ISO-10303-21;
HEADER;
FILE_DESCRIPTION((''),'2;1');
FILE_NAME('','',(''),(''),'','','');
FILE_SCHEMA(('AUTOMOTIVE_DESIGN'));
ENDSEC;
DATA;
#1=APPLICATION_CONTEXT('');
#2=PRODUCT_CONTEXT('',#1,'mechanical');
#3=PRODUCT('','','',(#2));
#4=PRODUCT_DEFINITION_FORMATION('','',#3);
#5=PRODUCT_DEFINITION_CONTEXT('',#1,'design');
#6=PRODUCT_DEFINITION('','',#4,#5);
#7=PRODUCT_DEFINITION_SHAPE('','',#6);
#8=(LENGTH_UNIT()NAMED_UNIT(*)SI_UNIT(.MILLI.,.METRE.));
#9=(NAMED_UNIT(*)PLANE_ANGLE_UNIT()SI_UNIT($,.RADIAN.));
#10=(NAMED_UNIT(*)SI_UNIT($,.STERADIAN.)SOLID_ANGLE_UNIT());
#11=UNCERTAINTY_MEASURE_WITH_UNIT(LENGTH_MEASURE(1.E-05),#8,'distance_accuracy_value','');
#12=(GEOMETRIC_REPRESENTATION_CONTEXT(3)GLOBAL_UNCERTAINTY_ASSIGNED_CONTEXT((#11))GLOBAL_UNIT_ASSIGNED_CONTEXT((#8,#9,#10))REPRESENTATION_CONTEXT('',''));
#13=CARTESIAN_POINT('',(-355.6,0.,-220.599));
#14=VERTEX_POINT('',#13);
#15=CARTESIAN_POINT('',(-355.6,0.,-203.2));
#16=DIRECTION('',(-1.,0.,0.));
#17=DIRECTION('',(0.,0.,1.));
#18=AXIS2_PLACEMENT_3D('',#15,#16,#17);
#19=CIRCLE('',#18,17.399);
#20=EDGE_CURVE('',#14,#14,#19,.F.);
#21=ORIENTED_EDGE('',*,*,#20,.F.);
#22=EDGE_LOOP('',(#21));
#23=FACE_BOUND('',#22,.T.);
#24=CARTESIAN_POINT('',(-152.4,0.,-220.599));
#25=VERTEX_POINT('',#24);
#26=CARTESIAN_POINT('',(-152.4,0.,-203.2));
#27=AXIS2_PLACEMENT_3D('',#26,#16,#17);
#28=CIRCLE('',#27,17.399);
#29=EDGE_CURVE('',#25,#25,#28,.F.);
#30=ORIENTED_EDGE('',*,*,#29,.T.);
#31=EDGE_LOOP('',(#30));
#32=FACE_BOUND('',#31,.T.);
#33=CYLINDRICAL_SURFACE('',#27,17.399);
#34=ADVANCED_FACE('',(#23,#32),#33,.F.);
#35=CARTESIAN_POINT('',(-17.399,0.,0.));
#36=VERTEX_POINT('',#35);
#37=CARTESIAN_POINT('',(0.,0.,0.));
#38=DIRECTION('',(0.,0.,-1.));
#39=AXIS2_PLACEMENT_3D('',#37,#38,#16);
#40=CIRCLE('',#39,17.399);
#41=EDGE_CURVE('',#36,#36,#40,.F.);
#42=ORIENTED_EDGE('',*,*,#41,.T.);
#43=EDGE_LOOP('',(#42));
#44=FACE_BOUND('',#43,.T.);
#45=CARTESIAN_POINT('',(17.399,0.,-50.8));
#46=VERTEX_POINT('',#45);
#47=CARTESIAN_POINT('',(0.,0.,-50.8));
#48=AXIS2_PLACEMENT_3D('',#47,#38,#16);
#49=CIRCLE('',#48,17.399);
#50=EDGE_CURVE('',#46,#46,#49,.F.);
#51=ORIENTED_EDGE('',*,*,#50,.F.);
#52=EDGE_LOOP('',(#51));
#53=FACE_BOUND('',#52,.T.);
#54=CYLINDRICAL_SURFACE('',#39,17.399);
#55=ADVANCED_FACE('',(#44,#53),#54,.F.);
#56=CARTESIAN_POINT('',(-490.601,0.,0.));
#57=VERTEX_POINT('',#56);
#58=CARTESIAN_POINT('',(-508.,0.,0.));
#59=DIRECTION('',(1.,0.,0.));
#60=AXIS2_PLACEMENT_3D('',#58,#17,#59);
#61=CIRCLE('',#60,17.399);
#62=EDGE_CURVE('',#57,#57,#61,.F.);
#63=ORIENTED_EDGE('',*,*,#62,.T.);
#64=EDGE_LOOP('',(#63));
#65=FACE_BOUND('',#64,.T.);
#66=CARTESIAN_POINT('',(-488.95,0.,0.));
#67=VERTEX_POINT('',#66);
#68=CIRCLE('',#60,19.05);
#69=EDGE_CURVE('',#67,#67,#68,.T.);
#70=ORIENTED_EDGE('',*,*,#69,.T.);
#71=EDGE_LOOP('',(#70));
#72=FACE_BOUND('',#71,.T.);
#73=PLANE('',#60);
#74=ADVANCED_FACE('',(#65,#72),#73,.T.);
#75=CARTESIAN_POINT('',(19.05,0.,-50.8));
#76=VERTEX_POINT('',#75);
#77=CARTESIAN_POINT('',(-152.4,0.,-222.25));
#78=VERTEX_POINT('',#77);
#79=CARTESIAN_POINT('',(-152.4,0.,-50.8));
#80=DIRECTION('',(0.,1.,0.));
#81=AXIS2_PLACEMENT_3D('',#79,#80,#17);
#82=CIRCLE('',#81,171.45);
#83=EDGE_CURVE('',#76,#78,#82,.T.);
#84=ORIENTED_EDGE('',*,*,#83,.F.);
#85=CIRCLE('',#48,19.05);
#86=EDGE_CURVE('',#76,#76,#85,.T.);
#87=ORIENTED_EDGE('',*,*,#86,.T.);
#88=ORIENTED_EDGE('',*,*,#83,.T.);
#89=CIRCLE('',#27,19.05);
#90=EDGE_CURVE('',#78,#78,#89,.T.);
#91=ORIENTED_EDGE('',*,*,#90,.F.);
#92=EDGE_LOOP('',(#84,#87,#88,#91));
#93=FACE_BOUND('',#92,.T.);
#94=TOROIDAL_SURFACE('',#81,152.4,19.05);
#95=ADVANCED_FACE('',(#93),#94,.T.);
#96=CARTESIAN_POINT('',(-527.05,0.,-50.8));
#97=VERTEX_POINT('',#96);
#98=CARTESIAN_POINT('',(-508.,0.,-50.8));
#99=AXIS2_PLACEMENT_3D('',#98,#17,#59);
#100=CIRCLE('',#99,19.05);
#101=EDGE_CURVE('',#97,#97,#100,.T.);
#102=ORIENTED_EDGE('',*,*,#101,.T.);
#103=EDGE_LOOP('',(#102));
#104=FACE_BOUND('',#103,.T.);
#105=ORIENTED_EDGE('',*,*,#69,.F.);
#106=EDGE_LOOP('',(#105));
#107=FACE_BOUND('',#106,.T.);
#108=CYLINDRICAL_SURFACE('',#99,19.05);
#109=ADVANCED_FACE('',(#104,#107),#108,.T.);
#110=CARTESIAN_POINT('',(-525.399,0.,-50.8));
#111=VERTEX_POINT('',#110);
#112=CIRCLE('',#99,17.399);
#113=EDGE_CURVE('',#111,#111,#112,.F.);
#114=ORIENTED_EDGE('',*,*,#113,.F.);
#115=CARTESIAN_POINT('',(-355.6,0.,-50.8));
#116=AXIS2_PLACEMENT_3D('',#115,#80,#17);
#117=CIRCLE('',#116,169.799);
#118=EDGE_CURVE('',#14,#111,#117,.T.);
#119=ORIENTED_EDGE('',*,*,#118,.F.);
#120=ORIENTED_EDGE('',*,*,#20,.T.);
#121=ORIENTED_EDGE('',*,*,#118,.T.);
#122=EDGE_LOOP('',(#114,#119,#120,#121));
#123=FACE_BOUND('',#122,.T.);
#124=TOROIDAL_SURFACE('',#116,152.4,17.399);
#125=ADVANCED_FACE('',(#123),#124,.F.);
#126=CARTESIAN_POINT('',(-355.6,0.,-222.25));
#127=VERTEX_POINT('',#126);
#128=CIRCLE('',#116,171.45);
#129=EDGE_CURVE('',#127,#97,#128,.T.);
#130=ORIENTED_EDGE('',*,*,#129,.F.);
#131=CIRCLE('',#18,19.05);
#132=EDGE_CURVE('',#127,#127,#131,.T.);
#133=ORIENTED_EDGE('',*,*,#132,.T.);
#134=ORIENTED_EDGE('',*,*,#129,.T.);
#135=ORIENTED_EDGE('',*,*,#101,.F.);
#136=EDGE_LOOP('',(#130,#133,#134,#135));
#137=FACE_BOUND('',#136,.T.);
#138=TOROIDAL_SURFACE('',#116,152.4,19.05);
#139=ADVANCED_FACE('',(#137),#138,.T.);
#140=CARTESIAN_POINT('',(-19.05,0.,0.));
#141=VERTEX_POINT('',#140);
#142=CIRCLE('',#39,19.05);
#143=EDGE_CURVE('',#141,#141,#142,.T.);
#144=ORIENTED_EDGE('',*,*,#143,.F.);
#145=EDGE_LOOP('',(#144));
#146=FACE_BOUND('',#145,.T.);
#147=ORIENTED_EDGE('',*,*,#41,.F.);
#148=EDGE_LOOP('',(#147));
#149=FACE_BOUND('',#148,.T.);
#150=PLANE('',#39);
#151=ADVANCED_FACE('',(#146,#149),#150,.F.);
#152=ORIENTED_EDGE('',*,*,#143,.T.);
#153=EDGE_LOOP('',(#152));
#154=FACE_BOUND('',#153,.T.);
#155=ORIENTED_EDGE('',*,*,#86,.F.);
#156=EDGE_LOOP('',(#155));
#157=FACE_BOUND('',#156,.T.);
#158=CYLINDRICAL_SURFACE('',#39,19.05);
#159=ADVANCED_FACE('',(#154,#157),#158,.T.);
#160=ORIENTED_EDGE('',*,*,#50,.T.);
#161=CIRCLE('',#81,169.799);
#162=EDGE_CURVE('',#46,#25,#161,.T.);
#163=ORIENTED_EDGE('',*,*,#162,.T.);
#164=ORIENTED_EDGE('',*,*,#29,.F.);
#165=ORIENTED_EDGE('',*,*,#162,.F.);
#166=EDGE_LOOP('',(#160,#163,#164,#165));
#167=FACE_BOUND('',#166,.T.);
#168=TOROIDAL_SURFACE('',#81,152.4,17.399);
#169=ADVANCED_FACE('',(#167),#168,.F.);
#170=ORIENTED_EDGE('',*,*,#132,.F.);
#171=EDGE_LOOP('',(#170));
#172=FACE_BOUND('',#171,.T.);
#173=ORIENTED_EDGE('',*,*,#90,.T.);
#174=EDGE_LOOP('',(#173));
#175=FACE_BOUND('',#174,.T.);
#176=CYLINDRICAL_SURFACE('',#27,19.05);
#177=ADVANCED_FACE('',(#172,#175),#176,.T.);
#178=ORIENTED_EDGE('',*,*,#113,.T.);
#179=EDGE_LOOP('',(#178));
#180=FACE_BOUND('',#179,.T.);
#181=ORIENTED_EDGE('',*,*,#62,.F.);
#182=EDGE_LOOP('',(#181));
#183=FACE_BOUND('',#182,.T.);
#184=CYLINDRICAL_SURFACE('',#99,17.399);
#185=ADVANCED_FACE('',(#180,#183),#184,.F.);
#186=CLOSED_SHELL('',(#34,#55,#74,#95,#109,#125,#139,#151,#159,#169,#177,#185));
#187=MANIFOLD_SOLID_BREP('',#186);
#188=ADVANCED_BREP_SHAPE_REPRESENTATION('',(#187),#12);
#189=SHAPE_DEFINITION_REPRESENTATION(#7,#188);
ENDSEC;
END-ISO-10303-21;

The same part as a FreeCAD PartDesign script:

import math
import FreeCAD as App
import Part
import Sketcher

V = App.Vector
Q = App.Units.Quantity

doc = App.newDocument("Part")
body = doc.addObject("PartDesign::Body", "Body")

# Sketch on XY plane
sketch1 = doc.addObject("Sketcher::SketchObject", "Sketch")
body.addObject(sketch1)
sketch1.AttachmentSupport = (doc.XY_Plane, [""])
sketch1.MapMode = "FlatFace"
sketch1.addGeometry([
    Part.Circle(V(-508, 0, 0), V(0, 0, 1), 19),
    Part.Circle(V(-508, 0, 0), V(0, 0, 1), 17),
], False)
sketch1.addConstraint([
    Sketcher.Constraint("Coincident", 1, 3, 0, 3),
    Sketcher.Constraint("PointOnObject", 0, 3, -1),
    Sketcher.Constraint("Diameter", 0, Q("1.5 in")),
    Sketcher.Constraint("Diameter", 1, Q("1.37 in")),
    Sketcher.Constraint("DistanceX", 0, 3, -1, 1, Q("20 in")),
])

# Sketch on XZ plane
sketch2 = doc.addObject("Sketcher::SketchObject", "Sketch001")
body.addObject(sketch2)
sketch2.AttachmentSupport = (doc.XZ_Plane, [""])
sketch2.MapMode = "FlatFace"
sketch2.addGeometry([
    Part.LineSegment(V(0, 0, 0), V(0, -51, 0)),  # 0
    Part.ArcOfCircle(Part.Circle(V(-152, -51, 0), V(0, 0, 1), 152), math.radians(-90), math.radians(0)),  # 1
    Part.LineSegment(V(-152, -203, 0), V(-356, -203, 0)),  # 2
    Part.ArcOfCircle(Part.Circle(V(-356, -51, 0), V(0, 0, 1), 152), math.radians(180), math.radians(270)),  # 3
    Part.LineSegment(V(-508, -51, 0), V(-508, 0, 0)),  # 4
], False)
sketch2.addConstraint([
    Sketcher.Constraint("Tangent", 0, 2, 1, 2),
    Sketcher.Constraint("Tangent", 1, 1, 2, 1),
    Sketcher.Constraint("Tangent", 2, 2, 3, 2),
    Sketcher.Constraint("Tangent", 3, 1, 4, 1),
    Sketcher.Constraint("Vertical", 0),
    Sketcher.Constraint("Horizontal", 2),
    Sketcher.Constraint("Vertical", 4),
    Sketcher.Constraint("Coincident", 0, 1, -1, 1),
    Sketcher.Constraint("Equal", 1, 3),
    Sketcher.Constraint("PointOnObject", 4, 2, -1),
    Sketcher.Constraint("Radius", 1, Q("6 in")),
    Sketcher.Constraint("DistanceX", 2, 2, 2, 1, Q("8 in")),
    Sketcher.Constraint("DistanceY", 0, 2, 0, 1, Q("2 in")),
])
doc.recompute()

additivepipe = doc.addObject("PartDesign::AdditivePipe", "AdditivePipe")
body.addObject(additivepipe)
additivepipe.Profile = sketch1
additivepipe.Spine = (sketch2, ["Edge1", "Edge2", "Edge3", "Edge4", "Edge5"])

doc.recompute()
